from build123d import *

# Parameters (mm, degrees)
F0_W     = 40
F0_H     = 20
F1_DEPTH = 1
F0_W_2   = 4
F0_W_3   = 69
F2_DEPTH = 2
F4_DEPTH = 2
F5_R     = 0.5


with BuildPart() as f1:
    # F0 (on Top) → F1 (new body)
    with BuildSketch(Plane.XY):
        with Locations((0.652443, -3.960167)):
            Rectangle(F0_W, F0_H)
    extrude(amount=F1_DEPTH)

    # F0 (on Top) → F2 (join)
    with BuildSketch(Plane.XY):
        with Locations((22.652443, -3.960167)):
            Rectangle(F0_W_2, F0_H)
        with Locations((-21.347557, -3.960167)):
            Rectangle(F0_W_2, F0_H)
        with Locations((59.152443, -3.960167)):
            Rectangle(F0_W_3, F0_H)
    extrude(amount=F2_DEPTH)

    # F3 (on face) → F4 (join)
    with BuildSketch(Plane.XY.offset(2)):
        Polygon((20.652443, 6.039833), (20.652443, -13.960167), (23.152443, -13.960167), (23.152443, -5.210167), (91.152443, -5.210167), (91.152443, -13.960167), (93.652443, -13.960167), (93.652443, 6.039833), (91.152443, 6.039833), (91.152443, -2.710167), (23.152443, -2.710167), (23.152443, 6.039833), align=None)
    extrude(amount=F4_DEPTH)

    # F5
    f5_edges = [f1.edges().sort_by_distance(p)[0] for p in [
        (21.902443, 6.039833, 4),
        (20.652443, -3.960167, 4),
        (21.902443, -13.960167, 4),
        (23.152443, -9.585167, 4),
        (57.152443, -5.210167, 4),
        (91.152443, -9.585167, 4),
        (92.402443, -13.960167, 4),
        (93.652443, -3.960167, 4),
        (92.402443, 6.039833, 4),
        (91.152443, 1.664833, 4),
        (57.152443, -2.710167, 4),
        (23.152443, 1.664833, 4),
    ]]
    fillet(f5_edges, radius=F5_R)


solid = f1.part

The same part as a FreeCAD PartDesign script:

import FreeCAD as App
import Part
import Sketcher

V = App.Vector


def edges_at(feature, points):
    """Names of the edges that pass closest to the given points."""
    edges = feature.Shape.Edges
    near = lambda p: min(range(len(edges)), key=lambda i: edges[i].distToShape(Part.Vertex(*p))[0])
    return sorted({f"Edge{near(p) + 1}" for p in points})

doc = App.newDocument("Part")
body = doc.addObject("PartDesign::Body", "Body")

sketch1 = body.newObject("Sketcher::SketchObject", "Sketch")
sketch1.AttachmentSupport = (doc.getObject("XY_Plane"), [""])
sketch1.MapMode = "FlatFace"
sketch1.addGeometry([
    Part.LineSegment(V(-19, 6, 0), V(-19, -14, 0)),
    Part.LineSegment(V(-19, -14, 0), V(21, -14, 0)),
    Part.LineSegment(V(21, -14, 0), V(21, 6, 0)),
    Part.LineSegment(V(21, 6, 0), V(-19, 6, 0)),
], False)
sketch1.addConstraint([
    Sketcher.Constraint("Coincident", 0, 2, 1, 1),
    Sketcher.Constraint("Coincident", 1, 2, 2, 1),
    Sketcher.Constraint("Coincident", 2, 2, 3, 1),
    Sketcher.Constraint("Coincident", 3, 2, 0, 1),
    Sketcher.Constraint("Vertical", 0),
    Sketcher.Constraint("Horizontal", 1),
    Sketcher.Constraint("Vertical", 2),
    Sketcher.Constraint("Horizontal", 3),
    Sketcher.Constraint("DistanceX", 1, 1, 1, 2, 40.0),
    Sketcher.Constraint("DistanceY", 0, 2, 0, 1, 20.0),
    Sketcher.Constraint("DistanceX", 0, 2, -1, 1, 19.347557),
    Sketcher.Constraint("DistanceY", 0, 2, -1, 1, 13.960167),
])
pad1 = body.newObject("PartDesign::Pad", "Pad")
pad1.Profile = sketch1
pad1.Length = 1

sketch2 = body.newObject("Sketcher::SketchObject", "Sketch001")
sketch2.AttachmentSupport = (doc.getObject("XY_Plane"), [""])
sketch2.MapMode = "FlatFace"
sketch2.addGeometry([
    Part.LineSegment(V(20.7, 6, 0), V(20.7, -14, 0)),
    Part.LineSegment(V(20.7, -14, 0), V(93.7, -14, 0)),
    Part.LineSegment(V(93.7, -14, 0), V(93.7, 6, 0)),
    Part.LineSegment(V(93.7, 6, 0), V(20.7, 6, 0)),
    Part.LineSegment(V(-23.3, 6, 0), V(-23.3, -14, 0)),
    Part.LineSegment(V(-23.3, -14, 0), V(-19.3, -14, 0)),
    Part.LineSegment(V(-19.3, -14, 0), V(-19.3, 6, 0)),
    Part.LineSegment(V(-19.3, 6, 0), V(-23.3, 6, 0)),
], False)
sketch2.addConstraint([
    Sketcher.Constraint("Coincident", 0, 2, 1, 1),
    Sketcher.Constraint("Coincident", 1, 2, 2, 1),
    Sketcher.Constraint("Coincident", 2, 2, 3, 1),
    Sketcher.Constraint("Coincident", 3, 2, 0, 1),
    Sketcher.Constraint("Coincident", 4, 2, 5, 1),
    Sketcher.Constraint("Coincident", 5, 2, 6, 1),
    Sketcher.Constraint("Coincident", 6, 2, 7, 1),
    Sketcher.Constraint("Coincident", 7, 2, 4, 1),
    Sketcher.Constraint("Vertical", 0),
    Sketcher.Constraint("Horizontal", 1),
    Sketcher.Constraint("Vertical", 2),
    Sketcher.Constraint("Horizontal", 3),
    Sketcher.Constraint("Vertical", 4),
    Sketcher.Constraint("Horizontal", 5),
    Sketcher.Constraint("Vertical", 6),
    Sketcher.Constraint("Horizontal", 7),
    Sketcher.Constraint("Horizontal", 1, 2, 4, 2),
    Sketcher.Constraint("Horizontal", 3, 2, 6, 2),
    Sketcher.Constraint("DistanceX", 1, 1, 1, 2, 73.0),
    Sketcher.Constraint("DistanceX", 5, 1, 5, 2, 4.0),
    Sketcher.Constraint("DistanceY", 0, 2, 0, 1, 20.0),
    Sketcher.Constraint("DistanceX", 4, 2, 0, 2, 44.0),
    Sketcher.Constraint("DistanceX", -1, 1, 0, 2, 20.652443),
    Sketcher.Constraint("DistanceY", 0, 2, -1, 1, 13.960167),
])
pad2 = body.newObject("PartDesign::Pad", "Pad001")
pad2.Profile = sketch2
pad2.Length = 2

sketch3 = body.newObject("Sketcher::SketchObject", "Sketch002")
sketch3.AttachmentSupport = (doc.getObject("XY_Plane"), [""])
sketch3.MapMode = "FlatFace"
sketch3.AttachmentOffset = App.Placement(V(0, 0, 2), App.Rotation())
sketch3.addGeometry([
    Part.LineSegment(V(20.7, 6, 0), V(20.7, -14, 0)),
    Part.LineSegment(V(20.7, -14, 0), V(23.2, -14, 0)),
    Part.LineSegment(V(23.2, -14, 0), V(23.2, -5.2, 0)),
    Part.LineSegment(V(23.2, -5.2, 0), V(91.2, -5.2, 0)),
    Part.LineSegment(V(91.2, -5.2, 0), V(91.2, -14, 0)),
    Part.LineSegment(V(91.2, -14, 0), V(93.7, -14, 0)),
    Part.LineSegment(V(93.7, -14, 0), V(93.7, 6, 0)),
    Part.LineSegment(V(93.7, 6, 0), V(91.2, 6, 0)),
    Part.LineSegment(V(91.2, 6, 0), V(91.2, -2.7, 0)),
    Part.LineSegment(V(91.2, -2.7, 0), V(23.2, -2.7, 0)),
    Part.LineSegment(V(23.2, -2.7, 0), V(23.2, 6, 0)),
    Part.LineSegment(V(23.2, 6, 0), V(20.7, 6, 0)),
], False)
sketch3.addConstraint([
    Sketcher.Constraint("Coincident", 0, 2, 1, 1),
    Sketcher.Constraint("Coincident", 1, 2, 2, 1),
    Sketcher.Constraint("Coincident", 2, 2, 3, 1),
    Sketcher.Constraint("Coincident", 3, 2, 4, 1),
    Sketcher.Constraint("Coincident", 4, 2, 5, 1),
    Sketcher.Constraint("Coincident", 5, 2, 6, 1),
    Sketcher.Constraint("Coincident", 6, 2, 7, 1),
    Sketcher.Constraint("Coincident", 7, 2, 8, 1),
    Sketcher.Constraint("Coincident", 8, 2, 9, 1),
    Sketcher.Constraint("Coincident", 9, 2, 10, 1),
    Sketcher.Constraint("Coincident", 10, 2, 11, 1),
    Sketcher.Constraint("Coincident", 11, 2, 0, 1),
    Sketcher.Constraint("Vertical", 0),
    Sketcher.Constraint("Horizontal", 1),
    Sketcher.Constraint("Vertical", 2),
    Sketcher.Constraint("Horizontal", 3),
    Sketcher.Constraint("Vertical", 4),
    Sketcher.Constraint("Horizontal", 5),
    Sketcher.Constraint("Vertical", 6),
    Sketcher.Constraint("Horizontal", 7),
    Sketcher.Constraint("Vertical", 8),
    Sketcher.Constraint("Horizontal", 9),
    Sketcher.Constraint("Vertical", 10),
    Sketcher.Constraint("Horizontal", 11),
    Sketcher.Constraint("Horizontal", 1, 2, 4, 2),
    Sketcher.Constraint("Horizontal", 7, 2, 10, 2),
    Sketcher.Constraint("Vertical", 4, 2, 7, 2),
    Sketcher.Constraint("Vertical", 2, 2, 9, 2),
    Sketcher.Constraint("Equal", 1, 5),
    Sketcher.Constraint("Equal", 4, 8),
    Sketcher.Constraint("DistanceX", 3, 1, 3, 2, 68.0),
    Sketcher.Constraint("DistanceY", 0, 2, 0, 1, 20.0),
    Sketcher.Constraint("DistanceX", 1, 1, 1, 2, 2.5),
    Sketcher.Constraint("DistanceY", 2, 1, 2, 2, 8.75),
    Sketcher.Constraint("DistanceX", -1, 1, 0, 2, 20.652443),
    Sketcher.Constraint("DistanceY", 0, 2, -1, 1, 13.960167),
])
pad3 = body.newObject("PartDesign::Pad", "Pad002")
pad3.Profile = sketch3
pad3.Length = 2
doc.recompute()

fillet = body.newObject("PartDesign::Fillet", "Fillet")
fillet.Base = (pad3, edges_at(pad3, [
    (21.902, 6.04, 4),
    (20.652, -3.96, 4),
    (21.902, -13.96, 4),
    (23.152, -9.585, 4),
    (57.152, -5.21, 4),
    (91.152, -9.585, 4),
    (92.402, -13.96, 4),
    (93.652, -3.96, 4),
    (92.402, 6.04, 4),
    (91.152, 1.665, 4),
    (57.152, -2.71, 4),
    (23.152, 1.665, 4),
]))
fillet.Radius = 0.5

doc.recompute()
